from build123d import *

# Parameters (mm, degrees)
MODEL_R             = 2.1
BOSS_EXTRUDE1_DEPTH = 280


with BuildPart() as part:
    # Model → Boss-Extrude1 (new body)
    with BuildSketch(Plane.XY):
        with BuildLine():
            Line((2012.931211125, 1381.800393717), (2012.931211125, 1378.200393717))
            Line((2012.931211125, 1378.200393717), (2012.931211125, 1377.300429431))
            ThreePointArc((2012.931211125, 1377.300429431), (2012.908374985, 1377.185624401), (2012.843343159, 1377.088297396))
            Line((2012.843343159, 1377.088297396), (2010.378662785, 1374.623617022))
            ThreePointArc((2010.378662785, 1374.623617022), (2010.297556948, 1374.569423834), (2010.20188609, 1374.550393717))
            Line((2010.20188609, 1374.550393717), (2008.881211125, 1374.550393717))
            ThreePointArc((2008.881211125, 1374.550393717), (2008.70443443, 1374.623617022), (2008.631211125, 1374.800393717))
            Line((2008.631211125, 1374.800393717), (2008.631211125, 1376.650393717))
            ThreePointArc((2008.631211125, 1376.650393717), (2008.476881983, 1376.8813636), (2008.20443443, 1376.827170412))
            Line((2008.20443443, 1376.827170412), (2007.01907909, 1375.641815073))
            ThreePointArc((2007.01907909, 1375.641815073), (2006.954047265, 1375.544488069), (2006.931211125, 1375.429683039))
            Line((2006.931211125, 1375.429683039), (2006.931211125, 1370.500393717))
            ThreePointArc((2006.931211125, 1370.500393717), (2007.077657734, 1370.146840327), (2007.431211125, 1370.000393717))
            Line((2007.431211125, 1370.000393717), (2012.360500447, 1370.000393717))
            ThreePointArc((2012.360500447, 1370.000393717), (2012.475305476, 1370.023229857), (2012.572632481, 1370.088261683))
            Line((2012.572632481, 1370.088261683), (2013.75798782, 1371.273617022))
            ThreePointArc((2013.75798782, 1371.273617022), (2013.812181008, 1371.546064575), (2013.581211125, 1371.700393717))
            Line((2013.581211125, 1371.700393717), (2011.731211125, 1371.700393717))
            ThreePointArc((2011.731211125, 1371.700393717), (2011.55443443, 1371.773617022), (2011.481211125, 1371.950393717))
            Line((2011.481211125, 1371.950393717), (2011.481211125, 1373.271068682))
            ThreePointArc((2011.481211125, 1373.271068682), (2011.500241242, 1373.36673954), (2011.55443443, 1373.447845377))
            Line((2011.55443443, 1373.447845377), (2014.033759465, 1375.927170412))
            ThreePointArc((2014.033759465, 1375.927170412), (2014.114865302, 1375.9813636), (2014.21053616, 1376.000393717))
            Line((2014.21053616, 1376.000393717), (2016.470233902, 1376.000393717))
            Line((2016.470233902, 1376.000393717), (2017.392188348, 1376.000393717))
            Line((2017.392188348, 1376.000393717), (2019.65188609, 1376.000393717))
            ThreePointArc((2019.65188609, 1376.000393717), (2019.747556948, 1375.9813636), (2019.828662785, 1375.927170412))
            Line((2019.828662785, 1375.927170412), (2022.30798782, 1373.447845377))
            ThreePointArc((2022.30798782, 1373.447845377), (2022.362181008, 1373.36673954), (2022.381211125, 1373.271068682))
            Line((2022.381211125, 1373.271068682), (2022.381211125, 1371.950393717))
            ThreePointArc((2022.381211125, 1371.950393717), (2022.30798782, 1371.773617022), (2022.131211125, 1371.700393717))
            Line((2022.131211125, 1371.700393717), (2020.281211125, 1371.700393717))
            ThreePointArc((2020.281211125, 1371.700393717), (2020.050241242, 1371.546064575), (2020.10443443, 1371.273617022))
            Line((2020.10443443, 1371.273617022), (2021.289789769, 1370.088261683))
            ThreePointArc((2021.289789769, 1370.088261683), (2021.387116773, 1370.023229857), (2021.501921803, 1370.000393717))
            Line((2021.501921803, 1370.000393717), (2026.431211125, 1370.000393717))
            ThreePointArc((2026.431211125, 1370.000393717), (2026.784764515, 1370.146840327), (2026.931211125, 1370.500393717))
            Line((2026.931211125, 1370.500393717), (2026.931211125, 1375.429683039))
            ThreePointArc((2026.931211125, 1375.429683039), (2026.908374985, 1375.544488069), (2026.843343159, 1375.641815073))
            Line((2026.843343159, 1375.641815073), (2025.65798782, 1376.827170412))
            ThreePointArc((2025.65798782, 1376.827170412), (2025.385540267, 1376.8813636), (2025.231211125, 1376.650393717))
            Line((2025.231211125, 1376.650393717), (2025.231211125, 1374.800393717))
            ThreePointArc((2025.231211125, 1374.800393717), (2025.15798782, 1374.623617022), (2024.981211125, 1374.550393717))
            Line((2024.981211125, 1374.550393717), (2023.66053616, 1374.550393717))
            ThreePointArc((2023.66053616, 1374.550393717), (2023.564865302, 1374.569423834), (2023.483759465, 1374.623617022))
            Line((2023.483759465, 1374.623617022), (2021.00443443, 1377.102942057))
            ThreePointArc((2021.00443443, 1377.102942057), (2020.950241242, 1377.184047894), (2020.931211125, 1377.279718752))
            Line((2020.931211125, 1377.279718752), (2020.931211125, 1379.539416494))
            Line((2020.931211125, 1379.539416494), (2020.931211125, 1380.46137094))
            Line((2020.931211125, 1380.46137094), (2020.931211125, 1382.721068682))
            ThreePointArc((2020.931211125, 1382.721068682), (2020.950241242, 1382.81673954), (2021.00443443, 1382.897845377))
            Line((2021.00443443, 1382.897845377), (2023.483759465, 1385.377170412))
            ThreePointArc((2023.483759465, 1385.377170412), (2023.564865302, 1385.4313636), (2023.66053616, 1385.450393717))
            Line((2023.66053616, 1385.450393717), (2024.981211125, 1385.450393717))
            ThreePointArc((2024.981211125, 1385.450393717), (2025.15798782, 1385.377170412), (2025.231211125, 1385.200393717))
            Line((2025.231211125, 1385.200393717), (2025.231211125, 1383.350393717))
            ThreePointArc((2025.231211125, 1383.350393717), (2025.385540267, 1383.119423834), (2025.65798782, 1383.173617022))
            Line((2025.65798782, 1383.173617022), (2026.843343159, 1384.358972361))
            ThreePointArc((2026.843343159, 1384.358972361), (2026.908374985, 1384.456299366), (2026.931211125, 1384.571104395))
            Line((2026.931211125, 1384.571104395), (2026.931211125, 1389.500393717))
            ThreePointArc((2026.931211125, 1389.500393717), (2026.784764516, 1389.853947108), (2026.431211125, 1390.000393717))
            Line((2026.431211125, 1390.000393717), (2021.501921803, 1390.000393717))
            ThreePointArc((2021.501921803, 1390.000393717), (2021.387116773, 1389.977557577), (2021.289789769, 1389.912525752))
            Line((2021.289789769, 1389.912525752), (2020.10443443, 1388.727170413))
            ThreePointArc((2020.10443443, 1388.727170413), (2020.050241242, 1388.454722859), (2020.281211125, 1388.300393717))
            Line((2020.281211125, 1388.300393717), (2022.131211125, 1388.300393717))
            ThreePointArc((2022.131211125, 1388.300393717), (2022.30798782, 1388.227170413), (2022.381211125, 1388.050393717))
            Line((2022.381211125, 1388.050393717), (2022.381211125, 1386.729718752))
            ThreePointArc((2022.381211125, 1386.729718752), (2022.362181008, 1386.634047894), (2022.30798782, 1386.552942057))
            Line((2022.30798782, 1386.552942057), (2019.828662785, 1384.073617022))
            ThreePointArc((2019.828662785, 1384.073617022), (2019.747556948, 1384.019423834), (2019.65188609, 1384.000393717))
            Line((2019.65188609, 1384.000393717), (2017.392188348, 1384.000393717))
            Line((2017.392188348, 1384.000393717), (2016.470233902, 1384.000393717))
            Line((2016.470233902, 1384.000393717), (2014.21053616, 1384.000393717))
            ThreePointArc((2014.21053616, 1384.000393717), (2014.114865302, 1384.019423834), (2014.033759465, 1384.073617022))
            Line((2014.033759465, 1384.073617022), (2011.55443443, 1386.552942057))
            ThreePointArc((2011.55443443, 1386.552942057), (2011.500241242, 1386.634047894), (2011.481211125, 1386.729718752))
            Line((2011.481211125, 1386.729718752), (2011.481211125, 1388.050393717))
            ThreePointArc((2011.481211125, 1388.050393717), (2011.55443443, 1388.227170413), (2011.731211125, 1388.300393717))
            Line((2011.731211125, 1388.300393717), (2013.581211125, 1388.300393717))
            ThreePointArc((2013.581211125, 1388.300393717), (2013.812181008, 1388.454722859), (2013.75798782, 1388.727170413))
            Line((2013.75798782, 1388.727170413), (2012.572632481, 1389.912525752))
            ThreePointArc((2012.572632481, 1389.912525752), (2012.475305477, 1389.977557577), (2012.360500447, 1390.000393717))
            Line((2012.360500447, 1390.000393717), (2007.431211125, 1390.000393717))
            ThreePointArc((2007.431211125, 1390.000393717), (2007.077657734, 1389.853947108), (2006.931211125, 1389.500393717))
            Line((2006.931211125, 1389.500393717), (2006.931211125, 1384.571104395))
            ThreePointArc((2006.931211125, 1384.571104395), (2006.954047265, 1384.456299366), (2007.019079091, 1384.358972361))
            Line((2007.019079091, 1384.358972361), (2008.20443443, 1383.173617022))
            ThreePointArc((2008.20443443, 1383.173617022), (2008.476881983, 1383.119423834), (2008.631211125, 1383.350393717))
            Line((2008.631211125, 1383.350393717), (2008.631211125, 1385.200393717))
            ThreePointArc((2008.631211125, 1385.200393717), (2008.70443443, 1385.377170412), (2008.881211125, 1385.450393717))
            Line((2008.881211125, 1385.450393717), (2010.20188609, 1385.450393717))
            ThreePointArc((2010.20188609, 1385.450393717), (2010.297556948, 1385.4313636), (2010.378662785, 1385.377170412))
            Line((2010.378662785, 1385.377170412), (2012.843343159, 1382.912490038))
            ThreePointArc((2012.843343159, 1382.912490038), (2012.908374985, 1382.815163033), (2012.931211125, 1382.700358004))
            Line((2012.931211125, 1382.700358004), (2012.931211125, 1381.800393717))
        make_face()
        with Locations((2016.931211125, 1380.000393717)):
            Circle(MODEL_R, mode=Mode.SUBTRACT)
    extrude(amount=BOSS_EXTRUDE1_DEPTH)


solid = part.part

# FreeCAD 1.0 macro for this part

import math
import FreeCAD as App
import Part
import Sketcher

doc = App.newDocument("Part")
body = doc.addObject("PartDesign::Body", "Body")

sketch1 = body.newObject("Sketcher::SketchObject", "Sketch")
sketch1.AttachmentSupport = (doc.getObject("XY_Plane"), [""])
sketch1.MapMode = "FlatFace"
sketch1.addGeometry(Part.ArcOfCircle(Part.Circle(App.Vector(2012.631211, 1377.300429, 0), App.Vector(0, 0, 1), 0.3), math.radians(-45), math.radians(0)), False)
sketch1.addGeometry(Part.LineSegment(App.Vector(2012.843343, 1377.088297, 0), App.Vector(2010.378663, 1374.623617, 0)), False)
sketch1.addGeometry(Part.ArcOfCircle(Part.Circle(App.Vector(2010.201886, 1374.800394, 0), App.Vector(0, 0, 1), 0.25), math.radians(-90), math.radians(-45)), False)
sketch1.addGeometry(Part.LineSegment(App.Vector(2010.201886, 1374.550394, 0), App.Vector(2008.881211, 1374.550394, 0)), False)
sketch1.addGeometry(Part.ArcOfCircle(Part.Circle(App.Vector(2008.881211, 1374.800394, 0), App.Vector(0, 0, 1), 0.25), math.radians(-180), math.radians(-90)), False)
sketch1.addGeometry(Part.LineSegment(App.Vector(2008.631211, 1374.800394, 0), App.Vector(2008.631211, 1376.650394, 0)), False)
sketch1.addGeometry(Part.ArcOfCircle(Part.Circle(App.Vector(2008.381211, 1376.650394, 0), App.Vector(0, 0, 1), 0.25), math.radians(0), math.radians(135)), False)
sketch1.addGeometry(Part.LineSegment(App.Vector(2008.204434, 1376.82717, 0), App.Vector(2007.019079, 1375.641815, 0)), False)
sketch1.addGeometry(Part.ArcOfCircle(Part.Circle(App.Vector(2007.231211, 1375.429683, 0), App.Vector(0, 0, 1), 0.3), math.radians(135), math.radians(180)), False)
sketch1.addGeometry(Part.LineSegment(App.Vector(2006.931211, 1375.429683, 0), App.Vector(2006.931211, 1370.500394, 0)), False)
sketch1.addGeometry(Part.ArcOfCircle(Part.Circle(App.Vector(2007.431211, 1370.500394, 0), App.Vector(0, 0, 1), 0.5), math.radians(180), math.radians(270)), False)
sketch1.addGeometry(Part.LineSegment(App.Vector(2007.431211, 1370.000394, 0), App.Vector(2012.3605, 1370.000394, 0)), False)
sketch1.addGeometry(Part.ArcOfCircle(Part.Circle(App.Vector(2012.3605, 1370.300394, 0), App.Vector(0, 0, 1), 0.3), math.radians(-90), math.radians(-45)), False)
sketch1.addGeometry(Part.LineSegment(App.Vector(2012.572632, 1370.088262, 0), App.Vector(2013.757988, 1371.273617, 0)), False)
sketch1.addGeometry(Part.ArcOfCircle(Part.Circle(App.Vector(2013.581211, 1371.450394, 0), App.Vector(0, 0, 1), 0.25), math.radians(-45), math.radians(90)), False)
sketch1.addGeometry(Part.LineSegment(App.Vector(2013.581211, 1371.700394, 0), App.Vector(2011.731211, 1371.700394, 0)), False)
sketch1.addGeometry(Part.ArcOfCircle(Part.Circle(App.Vector(2011.731211, 1371.950394, 0), App.Vector(0, 0, 1), 0.25), math.radians(-180), math.radians(-90)), False)
sketch1.addGeometry(Part.LineSegment(App.Vector(2011.481211, 1371.950394, 0), App.Vector(2011.481211, 1373.271069, 0)), False)
sketch1.addGeometry(Part.ArcOfCircle(Part.Circle(App.Vector(2011.731211, 1373.271069, 0), App.Vector(0, 0, 1), 0.25), math.radians(135), math.radians(180)), False)
sketch1.addGeometry(Part.LineSegment(App.Vector(2011.554434, 1373.447845, 0), App.Vector(2014.033759, 1375.92717, 0)), False)
sketch1.addGeometry(Part.ArcOfCircle(Part.Circle(App.Vector(2014.210536, 1375.750394, 0), App.Vector(0, 0, 1), 0.25), math.radians(90), math.radians(135)), False)
sketch1.addGeometry(Part.LineSegment(App.Vector(2014.210536, 1376.000394, 0), App.Vector(2019.651886, 1376.000394, 0)), False)
sketch1.addGeometry(Part.ArcOfCircle(Part.Circle(App.Vector(2019.651886, 1375.750394, 0), App.Vector(0, 0, 1), 0.25), math.radians(45), math.radians(90)), False)
sketch1.addGeometry(Part.LineSegment(App.Vector(2019.828663, 1375.92717, 0), App.Vector(2022.307988, 1373.447845, 0)), False)
sketch1.addGeometry(Part.ArcOfCircle(Part.Circle(App.Vector(2022.131211, 1373.271069, 0), App.Vector(0, 0, 1), 0.25), math.radians(0), math.radians(45)), False)
sketch1.addGeometry(Part.LineSegment(App.Vector(2022.381211, 1373.271069, 0), App.Vector(2022.381211, 1371.950394, 0)), False)
sketch1.addGeometry(Part.ArcOfCircle(Part.Circle(App.Vector(2022.131211, 1371.950394, 0), App.Vector(0, 0, 1), 0.25), math.radians(-90), math.radians(0)), False)
sketch1.addGeometry(Part.LineSegment(App.Vector(2022.131211, 1371.700394, 0), App.Vector(2020.281211, 1371.700394, 0)), False)
sketch1.addGeometry(Part.ArcOfCircle(Part.Circle(App.Vector(2020.281211, 1371.450394, 0), App.Vector(0, 0, 1), 0.25), math.radians(90), math.radians(225)), False)
sketch1.addGeometry(Part.LineSegment(App.Vector(2020.104434, 1371.273617, 0), App.Vector(2021.28979, 1370.088262, 0)), False)
sketch1.addGeometry(Part.ArcOfCircle(Part.Circle(App.Vector(2021.501922, 1370.300394, 0), App.Vector(0, 0, 1), 0.3), math.radians(-135.000001), math.radians(-90)), False)
sketch1.addGeometry(Part.LineSegment(App.Vector(2021.501922, 1370.000394, 0), App.Vector(2026.431211, 1370.000394, 0)), False)
sketch1.addGeometry(Part.ArcOfCircle(Part.Circle(App.Vector(2026.431211, 1370.500394, 0), App.Vector(0, 0, 1), 0.5), math.radians(-90), math.radians(0)), False)
sketch1.addGeometry(Part.LineSegment(App.Vector(2026.931211, 1370.500394, 0), App.Vector(2026.931211, 1375.429683, 0)), False)
sketch1.addGeometry(Part.ArcOfCircle(Part.Circle(App.Vector(2026.631211, 1375.429683, 0), App.Vector(0, 0, 1), 0.3), math.radians(0), math.radians(45.000001)), False)
sketch1.addGeometry(Part.LineSegment(App.Vector(2026.843343, 1375.641815, 0), App.Vector(2025.657988, 1376.82717, 0)), False)
sketch1.addGeometry(Part.ArcOfCircle(Part.Circle(App.Vector(2025.481211, 1376.650394, 0), App.Vector(0, 0, 1), 0.25), math.radians(45), math.radians(180)), False)
sketch1.addGeometry(Part.LineSegment(App.Vector(2025.231211, 1376.650394, 0), App.Vector(2025.231211, 1374.800394, 0)), False)
sketch1.addGeometry(Part.ArcOfCircle(Part.Circle(App.Vector(2024.981211, 1374.800394, 0), App.Vector(0, 0, 1), 0.25), math.radians(-90), math.radians(0)), False)
sketch1.addGeometry(Part.LineSegment(App.Vector(2024.981211, 1374.550394, 0), App.Vector(2023.660536, 1374.550394, 0)), False)
sketch1.addGeometry(Part.ArcOfCircle(Part.Circle(App.Vector(2023.660536, 1374.800394, 0), App.Vector(0, 0, 1), 0.25), math.radians(-135), math.radians(-90)), False)
sketch1.addGeometry(Part.LineSegment(App.Vector(2023.483759, 1374.623617, 0), App.Vector(2021.004434, 1377.102942, 0)), False)
sketch1.addGeometry(Part.ArcOfCircle(Part.Circle(App.Vector(2021.181211, 1377.279719, 0), App.Vector(0, 0, 1), 0.25), math.radians(180), math.radians(225)), False)
sketch1.addGeometry(Part.LineSegment(App.Vector(2020.931211, 1377.279719, 0), App.Vector(2020.931211, 1382.721069, 0)), False)
sketch1.addGeometry(Part.ArcOfCircle(Part.Circle(App.Vector(2021.181211, 1382.721069, 0), App.Vector(0, 0, 1), 0.25), math.radians(135), math.radians(180)), False)
sketch1.addGeometry(Part.LineSegment(App.Vector(2021.004434, 1382.897845, 0), App.Vector(2023.483759, 1385.37717, 0)), False)
sketch1.addGeometry(Part.ArcOfCircle(Part.Circle(App.Vector(2023.660536, 1385.200394, 0), App.Vector(0, 0, 1), 0.25), math.radians(90), math.radians(135)), False)
sketch1.addGeometry(Part.LineSegment(App.Vector(2023.660536, 1385.450394, 0), App.Vector(2024.981211, 1385.450394, 0)), False)
sketch1.addGeometry(Part.ArcOfCircle(Part.Circle(App.Vector(2024.981211, 1385.200394, 0), App.Vector(0, 0, 1), 0.25), math.radians(0), math.radians(90)), False)
sketch1.addGeometry(Part.LineSegment(App.Vector(2025.231211, 1385.200394, 0), App.Vector(2025.231211, 1383.350394, 0)), False)
sketch1.addGeometry(Part.ArcOfCircle(Part.Circle(App.Vector(2025.481211, 1383.350394, 0), App.Vector(0, 0, 1), 0.25), math.radians(180), math.radians(315)), False)
sketch1.addGeometry(Part.LineSegment(App.Vector(2025.657988, 1383.173617, 0), App.Vector(2026.843343, 1384.358972, 0)), False)
sketch1.addGeometry(Part.ArcOfCircle(Part.Circle(App.Vector(2026.631211, 1384.571104, 0), App.Vector(0, 0, 1), 0.3), math.radians(-45), math.radians(0)), False)
sketch1.addGeometry(Part.LineSegment(App.Vector(2026.931211, 1384.571104, 0), App.Vector(2026.931211, 1389.500394, 0)), False)
sketch1.addGeometry(Part.ArcOfCircle(Part.Circle(App.Vector(2026.431211, 1389.500394, 0), App.Vector(0, 0, 1), 0.5), math.radians(0), math.radians(90)), False)
sketch1.addGeometry(Part.LineSegment(App.Vector(2026.431211, 1390.000394, 0), App.Vector(2021.501922, 1390.000394, 0)), False)
sketch1.addGeometry(Part.ArcOfCircle(Part.Circle(App.Vector(2021.501922, 1389.700394, 0), App.Vector(0, 0, 1), 0.3), math.radians(90), math.radians(135)), False)
sketch1.addGeometry(Part.LineSegment(App.Vector(2021.28979, 1389.912526, 0), App.Vector(2020.104434, 1388.72717, 0)), False)
sketch1.addGeometry(Part.ArcOfCircle(Part.Circle(App.Vector(2020.281211, 1388.550394, 0), App.Vector(0, 0, 1), 0.25), math.radians(135), math.radians(270)), False)
sketch1.addGeometry(Part.LineSegment(App.Vector(2020.281211, 1388.300394, 0), App.Vector(2022.131211, 1388.300394, 0)), False)
sketch1.addGeometry(Part.ArcOfCircle(Part.Circle(App.Vector(2022.131211, 1388.050394, 0), App.Vector(0, 0, 1), 0.25), math.radians(0), math.radians(90)), False)
sketch1.addGeometry(Part.LineSegment(App.Vector(2022.381211, 1388.050394, 0), App.Vector(2022.381211, 1386.729719, 0)), False)
sketch1.addGeometry(Part.ArcOfCircle(Part.Circle(App.Vector(2022.131211, 1386.729719, 0), App.Vector(0, 0, 1), 0.25), math.radians(-45), math.radians(0)), False)
sketch1.addGeometry(Part.LineSegment(App.Vector(2022.307988, 1386.552942, 0), App.Vector(2019.828663, 1384.073617, 0)), False)
sketch1.addGeometry(Part.ArcOfCircle(Part.Circle(App.Vector(2019.651886, 1384.250394, 0), App.Vector(0, 0, 1), 0.25), math.radians(-90), math.radians(-45)), False)
sketch1.addGeometry(Part.LineSegment(App.Vector(2019.651886, 1384.000394, 0), App.Vector(2014.210536, 1384.000394, 0)), False)
sketch1.addGeometry(Part.ArcOfCircle(Part.Circle(App.Vector(2014.210536, 1384.250394, 0), App.Vector(0, 0, 1), 0.25), math.radians(-135), math.radians(-90)), False)
sketch1.addGeometry(Part.LineSegment(App.Vector(2014.033759, 1384.073617, 0), App.Vector(2011.554434, 1386.552942, 0)), False)
sketch1.addGeometry(Part.ArcOfCircle(Part.Circle(App.Vector(2011.731211, 1386.729719, 0), App.Vector(0, 0, 1), 0.25), math.radians(180), math.radians(225)), False)
sketch1.addGeometry(Part.LineSegment(App.Vector(2011.481211, 1386.729719, 0), App.Vector(2011.481211, 1388.050394, 0)), False)
sketch1.addGeometry(Part.ArcOfCircle(Part.Circle(App.Vector(2011.731211, 1388.050394, 0), App.Vector(0, 0, 1), 0.25), math.radians(90), math.radians(180)), False)
sketch1.addGeometry(Part.LineSegment(App.Vector(2011.731211, 1388.300394, 0), App.Vector(2013.581211, 1388.300394, 0)), False)
sketch1.addGeometry(Part.ArcOfCircle(Part.Circle(App.Vector(2013.581211, 1388.550394, 0), App.Vector(0, 0, 1), 0.25), math.radians(-90), math.radians(45)), False)
sketch1.addGeometry(Part.LineSegment(App.Vector(2013.757988, 1388.72717, 0), App.Vector(2012.572632, 1389.912526, 0)), False)
sketch1.addGeometry(Part.ArcOfCircle(Part.Circle(App.Vector(2012.3605, 1389.700394, 0), App.Vector(0, 0, 1), 0.3), math.radians(45), math.radians(90)), False)
sketch1.addGeometry(Part.LineSegment(App.Vector(2012.3605, 1390.000394, 0), App.Vector(2007.431211, 1390.000394, 0)), False)
sketch1.addGeometry(Part.ArcOfCircle(Part.Circle(App.Vector(2007.431211, 1389.500394, 0), App.Vector(0, 0, 1), 0.5), math.radians(90), math.radians(180)), False)
sketch1.addGeometry(Part.LineSegment(App.Vector(2006.931211, 1389.500394, 0), App.Vector(2006.931211, 1384.571104, 0)), False)
sketch1.addGeometry(Part.ArcOfCircle(Part.Circle(App.Vector(2007.231211, 1384.571104, 0), App.Vector(0, 0, 1), 0.3), math.radians(180), math.radians(225)), False)
sketch1.addGeometry(Part.LineSegment(App.Vector(2007.019079, 1384.358972, 0), App.Vector(2008.204434, 1383.173617, 0)), False)
sketch1.addGeometry(Part.ArcOfCircle(Part.Circle(App.Vector(2008.381211, 1383.350394, 0), App.Vector(0, 0, 1), 0.25), math.radians(-135), math.radians(0)), False)
sketch1.addGeometry(Part.LineSegment(App.Vector(2008.631211, 1383.350394, 0), App.Vector(2008.631211, 1385.200394, 0)), False)
sketch1.addGeometry(Part.ArcOfCircle(Part.Circle(App.Vector(2008.881211, 1385.200394, 0), App.Vector(0, 0, 1), 0.25), math.radians(90), math.radians(180)), False)
sketch1.addGeometry(Part.LineSegment(App.Vector(2008.881211, 1385.450394, 0), App.Vector(2010.201886, 1385.450394, 0)), False)
sketch1.addGeometry(Part.ArcOfCircle(Part.Circle(App.Vector(2010.201886, 1385.200394, 0), App.Vector(0, 0, 1), 0.25), math.radians(45), math.radians(90)), False)
sketch1.addGeometry(Part.LineSegment(App.Vector(2010.378663, 1385.37717, 0), App.Vector(2012.843343, 1382.91249, 0)), False)
sketch1.addGeometry(Part.ArcOfCircle(Part.Circle(App.Vector(2012.631211, 1382.700358, 0), App.Vector(0, 0, 1), 0.3), math.radians(0), math.radians(45)), False)
sketch1.addGeometry(Part.LineSegment(App.Vector(2012.931211, 1382.700358, 0), App.Vector(2012.931211, 1377.300429, 0)), False)
sketch1.addGeometry(Part.Circle(App.Vector(2016.931211, 1380.000394, 0), App.Vector(0, 0, 1), 2.1), False)
sketch1.addConstraint(Sketcher.Constraint("Tangent", 0, 1, 1, 1))
sketch1.addConstraint(Sketcher.Constraint("Tangent", 1, 2, 2, 2))
sketch1.addConstraint(Sketcher.Constraint("Tangent", 2, 1, 3, 1))
sketch1.addConstraint(Sketcher.Constraint("Tangent", 3, 2, 4, 2))
sketch1.addConstraint(Sketcher.Constraint("Tangent", 4, 1, 5, 1))
sketch1.addConstraint(Sketcher.Constraint("Tangent", 5, 2, 6, 1))
sketch1.addConstraint(Sketcher.Constraint("Tangent", 6, 2, 7, 1))
sketch1.addConstraint(Sketcher.Constraint("Tangent", 7, 2, 8, 1))
sketch1.addConstraint(Sketcher.Constraint("Tangent", 8, 2, 9, 1))
sketch1.addConstraint(Sketcher.Constraint("Tangent", 9, 2, 10, 1))
sketch1.addConstraint(Sketcher.Constraint("Tangent", 10, 2, 11, 1))
sketch1.addConstraint(Sketcher.Constraint("Tangent", 11, 2, 12, 1))
sketch1.addConstraint(Sketcher.Constraint("Tangent", 12, 2, 13, 1))
sketch1.addConstraint(Sketcher.Constraint("Tangent", 13, 2, 14, 1))
sketch1.addConstraint(Sketcher.Constraint("Tangent", 14, 2, 15, 1))
sketch1.addConstraint(Sketcher.Constraint("Tangent", 15, 2, 16, 2))
sketch1.addConstraint(Sketcher.Constraint("Tangent", 16, 1, 17, 1))
sketch1.addConstraint(Sketcher.Constraint("Tangent", 17, 2, 18, 2))
sketch1.addConstraint(Sketcher.Constraint("Tangent", 18, 1, 19, 1))
sketch1.addConstraint(Sketcher.Constraint("Tangent", 19, 2, 20, 2))
sketch1.addConstraint(Sketcher.Constraint("Tangent", 20, 1, 21, 1))
sketch1.addConstraint(Sketcher.Constraint("Tangent", 21, 2, 22, 2))
sketch1.addConstraint(Sketcher.Constraint("Tangent", 22, 1, 23, 1))
sketch1.addConstraint(Sketcher.Constraint("Tangent", 23, 2, 24, 2))
sketch1.addConstraint(Sketcher.Constraint("Tangent", 24, 1, 25, 1))
sketch1.addConstraint(Sketcher.Constraint("Tangent", 25, 2, 26, 2))
sketch1.addConstraint(Sketcher.Constraint("Tangent", 26, 1, 27, 1))
sketch1.addConstraint(Sketcher.Constraint("Tangent", 27, 2, 28, 1))
sketch1.addConstraint(Sketcher.Constraint("Tangent", 28, 2, 29, 1))
sketch1.addConstraint(Sketcher.Constraint("Tangent", 29, 2, 30, 1))
sketch1.addConstraint(Sketcher.Constraint("Tangent", 30, 2, 31, 1))
sketch1.addConstraint(Sketcher.Constraint("Tangent", 31, 2, 32, 1))
sketch1.addConstraint(Sketcher.Constraint("Tangent", 32, 2, 33, 1))
sketch1.addConstraint(Sketcher.Constraint("Tangent", 33, 2, 34, 1))
sketch1.addConstraint(Sketcher.Constraint("Tangent", 34, 2, 35, 1))
sketch1.addConstraint(Sketcher.Constraint("Tangent", 35, 2, 36, 1))
sketch1.addConstraint(Sketcher.Constraint("Tangent", 36, 2, 37, 1))
sketch1.addConstraint(Sketcher.Constraint("Tangent", 37, 2, 38, 2))
sketch1.addConstraint(Sketcher.Constraint("Tangent", 38, 1, 39, 1))
sketch1.addConstraint(Sketcher.Constraint("Tangent", 39, 2, 40, 2))
sketch1.addConstraint(Sketcher.Constraint("Tangent", 40, 1, 41, 1))
sketch1.addConstraint(Sketcher.Constraint("Tangent", 41, 2, 42, 2))
sketch1.addConstraint(Sketcher.Constraint("Tangent", 42, 1, 43, 1))
sketch1.addConstraint(Sketcher.Constraint("Tangent", 43, 2, 44, 2))
sketch1.addConstraint(Sketcher.Constraint("Tangent", 44, 1, 45, 1))
sketch1.addConstraint(Sketcher.Constraint("Tangent", 45, 2, 46, 2))
sketch1.addConstraint(Sketcher.Constraint("Tangent", 46, 1, 47, 1))
sketch1.addConstraint(Sketcher.Constraint("Tangent", 47, 2, 48, 2))
sketch1.addConstraint(Sketcher.Constraint("Tangent", 48, 1, 49, 1))
sketch1.addConstraint(Sketcher.Constraint("Tangent", 49, 2, 50, 1))
sketch1.addConstraint(Sketcher.Constraint("Tangent", 50, 2, 51, 1))
sketch1.addConstraint(Sketcher.Constraint("Tangent", 51, 2, 52, 1))
sketch1.addConstraint(Sketcher.Constraint("Tangent", 52, 2, 53, 1))
sketch1.addConstraint(Sketcher.Constraint("Tangent", 53, 2, 54, 1))
sketch1.addConstraint(Sketcher.Constraint("Tangent", 54, 2, 55, 1))
sketch1.addConstraint(Sketcher.Constraint("Tangent", 55, 2, 56, 1))
sketch1.addConstraint(Sketcher.Constraint("Tangent", 56, 2, 57, 1))
sketch1.addConstraint(Sketcher.Constraint("Tangent", 57, 2, 58, 1))
sketch1.addConstraint(Sketcher.Constraint("Tangent", 58, 2, 59, 1))
sketch1.addConstraint(Sketcher.Constraint("Tangent", 59, 2, 60, 2))
sketch1.addConstraint(Sketcher.Constraint("Tangent", 60, 1, 61, 1))
sketch1.addConstraint(Sketcher.Constraint("Tangent", 61, 2, 62, 2))
sketch1.addConstraint(Sketcher.Constraint("Tangent", 62, 1, 63, 1))
sketch1.addConstraint(Sketcher.Constraint("Tangent", 63, 2, 64, 2))
sketch1.addConstraint(Sketcher.Constraint("Tangent", 64, 1, 65, 1))
sketch1.addConstraint(Sketcher.Constraint("Tangent", 65, 2, 66, 2))
sketch1.addConstraint(Sketcher.Constraint("Tangent", 66, 1, 67, 1))
sketch1.addConstraint(Sketcher.Constraint("Tangent", 67, 2, 68, 2))
sketch1.addConstraint(Sketcher.Constraint("Tangent", 68, 1, 69, 1))
sketch1.addConstraint(Sketcher.Constraint("Tangent", 69, 2, 70, 2))
sketch1.addConstraint(Sketcher.Constraint("Tangent", 70, 1, 71, 1))
sketch1.addConstraint(Sketcher.Constraint("Tangent", 71, 2, 72, 1))
sketch1.addConstraint(Sketcher.Constraint("Tangent", 72, 2, 73, 1))
sketch1.addConstraint(Sketcher.Constraint("Tangent", 73, 2, 74, 1))
sketch1.addConstraint(Sketcher.Constraint("Tangent", 74, 2, 75, 1))
sketch1.addConstraint(Sketcher.Constraint("Tangent", 75, 2, 76, 1))
sketch1.addConstraint(Sketcher.Constraint("Tangent", 76, 2, 77, 1))
sketch1.addConstraint(Sketcher.Constraint("Tangent", 77, 2, 78, 1))
sketch1.addConstraint(Sketcher.Constraint("Tangent", 78, 2, 79, 1))
sketch1.addConstraint(Sketcher.Constraint("Tangent", 79, 2, 80, 1))
sketch1.addConstraint(Sketcher.Constraint("Tangent", 80, 2, 81, 1))
sketch1.addConstraint(Sketcher.Constraint("Tangent", 81, 2, 82, 2))
sketch1.addConstraint(Sketcher.Constraint("Tangent", 82, 1, 83, 1))
sketch1.addConstraint(Sketcher.Constraint("Tangent", 83, 2, 84, 2))
sketch1.addConstraint(Sketcher.Constraint("Tangent", 84, 1, 85, 1))
sketch1.addConstraint(Sketcher.Constraint("Tangent", 85, 2, 86, 2))
sketch1.addConstraint(Sketcher.Constraint("Tangent", 86, 1, 87, 1))
sketch1.addConstraint(Sketcher.Constraint("Tangent", 87, 2, 0, 2))
sketch1.addConstraint(Sketcher.Constraint("Horizontal", 3))
sketch1.addConstraint(Sketcher.Constraint("Vertical", 5))
sketch1.addConstraint(Sketcher.Constraint("Vertical", 9))
sketch1.addConstraint(Sketcher.Constraint("Horizontal", 11))
sketch1.addConstraint(Sketcher.Constraint("Horizontal", 15))
sketch1.addConstraint(Sketcher.Constraint("Vertical", 17))
sketch1.addConstraint(Sketcher.Constraint("Horizontal", 21))
sketch1.addConstraint(Sketcher.Constraint("Vertical", 25))
sketch1.addConstraint(Sketcher.Constraint("Horizontal", 27))
sketch1.addConstraint(Sketcher.Constraint("Horizontal", 31))
sketch1.addConstraint(Sketcher.Constraint("Vertical", 33))
sketch1.addConstraint(Sketcher.Constraint("Vertical", 37))
sketch1.addConstraint(Sketcher.Constraint("Horizontal", 39))
sketch1.addConstraint(Sketcher.Constraint("Vertical", 43))
sketch1.addConstraint(Sketcher.Constraint("Horizontal", 47))
sketch1.addConstraint(Sketcher.Constraint("Vertical", 49))
sketch1.addConstraint(Sketcher.Constraint("Vertical", 53))
sketch1.addConstraint(Sketcher.Constraint("Horizontal", 55))
sketch1.addConstraint(Sketcher.Constraint("Horizontal", 59))
sketch1.addConstraint(Sketcher.Constraint("Vertical", 61))
sketch1.addConstraint(Sketcher.Constraint("Horizontal", 65))
sketch1.addConstraint(Sketcher.Constraint("Vertical", 69))
sketch1.addConstraint(Sketcher.Constraint("Horizontal", 71))
sketch1.addConstraint(Sketcher.Constraint("Horizontal", 75))
sketch1.addConstraint(Sketcher.Constraint("Vertical", 77))
sketch1.addConstraint(Sketcher.Constraint("Vertical", 81))
sketch1.addConstraint(Sketcher.Constraint("Horizontal", 83))
sketch1.addConstraint(Sketcher.Constraint("Vertical", 87))
sketch1.addConstraint(Sketcher.Constraint("Equal", 2, 4))
sketch1.addConstraint(Sketcher.Constraint("Equal", 4, 6))
sketch1.addConstraint(Sketcher.Constraint("Equal", 0, 8))
sketch1.addConstraint(Sketcher.Constraint("Equal", 8, 12))
sketch1.addConstraint(Sketcher.Constraint("Equal", 6, 14))
sketch1.addConstraint(Sketcher.Constraint("Equal", 14, 16))
sketch1.addConstraint(Sketcher.Constraint("Equal", 16, 18))
sketch1.addConstraint(Sketcher.Constraint("Equal", 18, 20))
sketch1.addConstraint(Sketcher.Constraint("Equal", 20, 22))
sketch1.addConstraint(Sketcher.Constraint("Equal", 22, 24))
sketch1.addConstraint(Sketcher.Constraint("Equal", 24, 26))
sketch1.addConstraint(Sketcher.Constraint("Equal", 26, 28))
sketch1.addConstraint(Sketcher.Constraint("Equal", 12, 30))
sketch1.addConstraint(Sketcher.Constraint("Equal", 10, 32))
sketch1.addConstraint(Sketcher.Constraint("Equal", 30, 34))
sketch1.addConstraint(Sketcher.Constraint("Equal", 28, 36))
sketch1.addConstraint(Sketcher.Constraint("Equal", 36, 38))
sketch1.addConstraint(Sketcher.Constraint("Equal", 38, 40))
sketch1.addConstraint(Sketcher.Constraint("Equal", 40, 42))
sketch1.addConstraint(Sketcher.Constraint("Equal", 42, 44))
sketch1.addConstraint(Sketcher.Constraint("Equal", 44, 46))
sketch1.addConstraint(Sketcher.Constraint("Equal", 46, 48))
sketch1.addConstraint(Sketcher.Constraint("Equal", 48, 50))
sketch1.addConstraint(Sketcher.Constraint("Equal", 34, 52))
sketch1.addConstraint(Sketcher.Constraint("Equal", 32, 54))
sketch1.addConstraint(Sketcher.Constraint("Equal", 52, 56))
sketch1.addConstraint(Sketcher.Constraint("Equal", 50, 58))
sketch1.addConstraint(Sketcher.Constraint("Equal", 58, 60))
sketch1.addConstraint(Sketcher.Constraint("Equal", 60, 62))
sketch1.addConstraint(Sketcher.Constraint("Equal", 62, 64))
sketch1.addConstraint(Sketcher.Constraint("Equal", 64, 66))
sketch1.addConstraint(Sketcher.Constraint("Equal", 66, 68))
sketch1.addConstraint(Sketcher.Constraint("Equal", 68, 70))
sketch1.addConstraint(Sketcher.Constraint("Equal", 70, 72))
sketch1.addConstraint(Sketcher.Constraint("Equal", 56, 74))
sketch1.addConstraint(Sketcher.Constraint("Equal", 54, 76))
sketch1.addConstraint(Sketcher.Constraint("Equal", 74, 78))
sketch1.addConstraint(Sketcher.Constraint("Equal", 72, 80))
sketch1.addConstraint(Sketcher.Constraint("Equal", 80, 82))
sketch1.addConstraint(Sketcher.Constraint("Equal", 82, 84))
sketch1.addConstraint(Sketcher.Constraint("Equal", 78, 86))
sketch1.addConstraint(Sketcher.Constraint("Parallel", 1, 7))
sketch1.addConstraint(Sketcher.Constraint("Parallel", 7, 13))
sketch1.addConstraint(Sketcher.Constraint("Parallel", 13, 19))
sketch1.addConstraint(Sketcher.Constraint("Perpendicular", 19, 23))
sketch1.addConstraint(Sketcher.Constraint("Parallel", 23, 29))
sketch1.addConstraint(Sketcher.Constraint("Parallel", 29, 35))
sketch1.addConstraint(Sketcher.Constraint("Parallel", 35, 41))
sketch1.addConstraint(Sketcher.Constraint("Perpendicular", 41, 45))
sketch1.addConstraint(Sketcher.Constraint("Parallel", 45, 51))
sketch1.addConstraint(Sketcher.Constraint("Parallel", 51, 57))
sketch1.addConstraint(Sketcher.Constraint("Parallel", 57, 63))
sketch1.addConstraint(Sketcher.Constraint("Perpendicular", 63, 67))
sketch1.addConstraint(Sketcher.Constraint("Parallel", 67, 73))
sketch1.addConstraint(Sketcher.Constraint("Parallel", 73, 79))
sketch1.addConstraint(Sketcher.Constraint("Parallel", 79, 85))
sketch1.addConstraint(Sketcher.Constraint("Horizontal", 18, 3, 24, 3))
sketch1.addConstraint(Sketcher.Constraint("Horizontal", 16, 3, 26, 3))
sketch1.addConstraint(Sketcher.Constraint("Horizontal", 12, 3, 30, 3))
sketch1.addConstraint(Sketcher.Constraint("Horizontal", 8, 3, 34, 3))
sketch1.addConstraint(Sketcher.Constraint("Horizontal", 6, 3, 36, 3))
sketch1.addConstraint(Sketcher.Constraint("Horizontal", 4, 3, 38, 3))
sketch1.addConstraint(Sketcher.Constraint("Horizontal", 62, 3, 68, 3))
sketch1.addConstraint(Sketcher.Constraint("Horizontal", 60, 3, 70, 3))
sketch1.addConstraint(Sketcher.Constraint("Horizontal", 56, 3, 74, 3))
sketch1.addConstraint(Sketcher.Constraint("Horizontal", 52, 3, 78, 3))
sketch1.addConstraint(Sketcher.Constraint("Horizontal", 50, 3, 80, 3))
sketch1.addConstraint(Sketcher.Constraint("Horizontal", 48, 3, 82, 3))
sketch1.addConstraint(Sketcher.Constraint("Horizontal", 19, 2, 22, 1))
sketch1.addConstraint(Sketcher.Constraint("Vertical", 40, 3, 46, 3))
sketch1.addConstraint(Sketcher.Constraint("Vertical", 38, 3, 48, 3))
sketch1.addConstraint(Sketcher.Constraint("Vertical", 34, 3, 52, 3))
sketch1.addConstraint(Sketcher.Constraint("Vertical", 30, 3, 56, 3))
sketch1.addConstraint(Sketcher.Constraint("Vertical", 28, 3, 58, 3))
sketch1.addConstraint(Sketcher.Constraint("Vertical", 26, 3, 60, 3))
sketch1.addConstraint(Sketcher.Constraint("Vertical", 22, 3, 64, 3))
sketch1.addConstraint(Sketcher.Constraint("Vertical", 20, 3, 66, 3))
sketch1.addConstraint(Sketcher.Constraint("Vertical", 14, 3, 72, 3))
sketch1.addConstraint(Sketcher.Constraint("Vertical", 10, 3, 76, 3))
sketch1.addConstraint(Sketcher.Constraint("Vertical", 2, 3, 84, 3))
sketch1.addConstraint(Sketcher.Constraint("Equal", 15, 27))
sketch1.addConstraint(Sketcher.Constraint("Equal", 11, 31))
sketch1.addConstraint(Sketcher.Constraint("Equal", 3, 39))
sketch1.addConstraint(Sketcher.Constraint("Equal", 71, 5))
sketch1.addConstraint(Sketcher.Constraint("Equal", 75, 9))
sketch1.addConstraint(Sketcher.Constraint("Equal", 83, 17))
sketch1.addConstraint(Sketcher.Constraint("Equal", 65, 43))
sketch1.addConstraint(Sketcher.Constraint("Equal", 37, 49))
sketch1.addConstraint(Sketcher.Constraint("Equal", 33, 53))
sketch1.addConstraint(Sketcher.Constraint("Equal", 25, 61))
sketch1.addConstraint(Sketcher.Constraint("Equal", 7, 13))
sketch1.addConstraint(Sketcher.Constraint("Equal", 23, 41))
sketch1.addConstraint(Sketcher.Constraint("Diameter", 88, 4.2))
sketch1.addConstraint(Sketcher.Constraint("Radius", 0, 0.3))
sketch1.addConstraint(Sketcher.Constraint("Radius", 10, 0.5))
sketch1.addConstraint(Sketcher.Constraint("Radius", 2, 0.25))
sketch1.addConstraint(Sketcher.Constraint("DistanceX", 15, 2, 15, 1, 1.85))
sketch1.addConstraint(Sketcher.Constraint("DistanceX", 11, 1, 11, 2, 4.929289))
sketch1.addConstraint(Sketcher.Constraint("DistanceX", 21, 1, 21, 2, 5.44135))
sketch1.addConstraint(Sketcher.Constraint("DistanceY", 87, 2, 87, 1, 5.399929))
sketch1.addConstraint(Sketcher.Constraint("DistanceX", -1, 1, 12, 3, 2012.3605))
sketch1.addConstraint(Sketcher.Constraint("DistanceX", 3, 2, 3, 1, 1.320675))
sketch1.addConstraint(Sketcher.Constraint("DistanceX", -1, 1, 0, 3, 2012.631211))
sketch1.addConstraint(Sketcher.Constraint("DistanceY", -1, 1, 0, 3, 1377.300429))
sketch1.addConstraint(Sketcher.Constraint("DistanceX", -1, 1, 4, 3, 2008.881211))
sketch1.addConstraint(Sketcher.Constraint("DistanceX", -1, 1, 88, 3, 2016.931211))
sketch1.addConstraint(Sketcher.Constraint("DistanceY", -1, 1, 88, 3, 1380.000394))
pad1 = body.newObject("PartDesign::Pad", "Pad")
pad1.Profile = sketch1
pad1.Length = 280

doc.recompute()
